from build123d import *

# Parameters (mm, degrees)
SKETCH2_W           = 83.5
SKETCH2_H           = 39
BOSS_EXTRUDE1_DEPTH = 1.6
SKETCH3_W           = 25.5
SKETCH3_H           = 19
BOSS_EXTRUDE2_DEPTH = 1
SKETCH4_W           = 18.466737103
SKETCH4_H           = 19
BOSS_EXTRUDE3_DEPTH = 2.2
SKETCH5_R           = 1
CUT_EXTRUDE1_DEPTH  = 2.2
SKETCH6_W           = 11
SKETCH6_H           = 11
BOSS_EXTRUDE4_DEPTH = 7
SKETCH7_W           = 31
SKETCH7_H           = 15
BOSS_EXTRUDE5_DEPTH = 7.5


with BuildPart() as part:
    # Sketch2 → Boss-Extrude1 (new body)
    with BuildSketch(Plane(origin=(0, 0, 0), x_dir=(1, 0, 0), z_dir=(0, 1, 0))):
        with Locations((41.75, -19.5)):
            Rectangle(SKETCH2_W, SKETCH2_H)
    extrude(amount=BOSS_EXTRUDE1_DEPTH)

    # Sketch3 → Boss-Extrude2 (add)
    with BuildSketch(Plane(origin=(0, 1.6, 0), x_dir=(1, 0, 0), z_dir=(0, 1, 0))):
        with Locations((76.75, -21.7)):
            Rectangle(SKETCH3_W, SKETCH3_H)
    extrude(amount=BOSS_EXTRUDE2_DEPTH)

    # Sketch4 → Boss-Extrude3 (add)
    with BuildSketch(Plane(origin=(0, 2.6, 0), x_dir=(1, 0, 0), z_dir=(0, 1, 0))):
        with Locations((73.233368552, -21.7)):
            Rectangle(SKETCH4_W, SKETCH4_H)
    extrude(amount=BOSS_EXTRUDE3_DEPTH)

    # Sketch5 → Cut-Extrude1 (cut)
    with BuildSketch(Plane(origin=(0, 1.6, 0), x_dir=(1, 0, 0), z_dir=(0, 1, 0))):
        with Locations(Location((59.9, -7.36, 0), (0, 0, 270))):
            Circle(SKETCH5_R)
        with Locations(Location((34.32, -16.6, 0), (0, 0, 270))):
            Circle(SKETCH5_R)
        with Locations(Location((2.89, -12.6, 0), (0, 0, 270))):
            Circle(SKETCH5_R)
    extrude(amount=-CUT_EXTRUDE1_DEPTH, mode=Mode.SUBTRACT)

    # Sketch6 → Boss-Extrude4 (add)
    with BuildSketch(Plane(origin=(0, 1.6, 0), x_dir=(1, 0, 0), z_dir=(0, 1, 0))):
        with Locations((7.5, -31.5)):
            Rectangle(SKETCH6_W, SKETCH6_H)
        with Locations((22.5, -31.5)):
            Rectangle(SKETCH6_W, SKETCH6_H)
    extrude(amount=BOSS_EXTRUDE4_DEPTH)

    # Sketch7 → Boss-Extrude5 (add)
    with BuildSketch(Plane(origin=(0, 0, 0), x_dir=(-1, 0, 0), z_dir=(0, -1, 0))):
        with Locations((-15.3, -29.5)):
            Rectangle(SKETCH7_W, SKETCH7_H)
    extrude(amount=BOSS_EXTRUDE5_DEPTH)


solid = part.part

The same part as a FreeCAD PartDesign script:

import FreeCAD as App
import Part
import Sketcher


def add_polygon(sketch, points):
    """Adds a closed chain of lines whose ends are joined by coincident constraints."""
    first, n = sketch.GeometryCount, len(points)
    for a, b in zip(points, points[1:] + points[:1]):
        sketch.addGeometry(Part.LineSegment(App.Vector(*a, 0), App.Vector(*b, 0)), False)
    for i in range(n):
        sketch.addConstraint(Sketcher.Constraint("Coincident", first + i, 2, first + (i + 1) % n, 1))

doc = App.newDocument("Part")
body = doc.addObject("PartDesign::Body", "Body")

# Sketch on XZ plane
sketch1 = body.newObject("Sketcher::SketchObject", "Sketch")
sketch1.AttachmentSupport = (doc.getObject("XZ_Plane"), [""])
sketch1.MapMode = "FlatFace"
add_polygon(sketch1, [(0, 0), (0, 39), (84, 39), (84, 0)])  # lines 0-3
sketch1.addConstraint([
    Sketcher.Constraint("Vertical", 0),
    Sketcher.Constraint("Horizontal", 1),
    Sketcher.Constraint("Vertical", 2),
    Sketcher.Constraint("Horizontal", 3),
    Sketcher.Constraint("Coincident", 3, 2, -1, 1),
    Sketcher.Constraint("DistanceY", 0, 1, 0, 2, 39.0),
    Sketcher.Constraint("DistanceX", 1, 1, 1, 2, 83.5),
])
pad1 = body.newObject("PartDesign::Pad", "Pad")
pad1.Profile = sketch1
pad1.Length = 1.6
pad1.Reversed = True

# Sketch on XZ plane
sketch2 = body.newObject("Sketcher::SketchObject", "Sketch001")
sketch2.AttachmentSupport = (doc.getObject("XZ_Plane"), [""])
sketch2.MapMode = "FlatFace"
sketch2.AttachmentOffset = App.Placement(App.Vector(0, 0, -1.6), App.Rotation())
add_polygon(sketch2, [(64, 12), (64, 31), (90, 31), (90, 12)])  # lines 0-3
sketch2.addConstraint([
    Sketcher.Constraint("Vertical", 0),
    Sketcher.Constraint("Horizontal", 1),
    Sketcher.Constraint("Vertical", 2),
    Sketcher.Constraint("Horizontal", 3),
    Sketcher.Constraint("DistanceY", 0, 1, 0, 2, 19.0),
    Sketcher.Constraint("DistanceX", 1, 1, 1, 2, 25.5),
    Sketcher.Constraint("DistanceX", -1, 1, 0, 2, 64.0),
    Sketcher.Constraint("DistanceY", -1, 1, 0, 2, 31.2),
])
pad2 = body.newObject("PartDesign::Pad", "Pad001")
pad2.Profile = sketch2
pad2.Length = 1
pad2.Reversed = True

# Sketch on XZ plane
sketch3 = body.newObject("Sketcher::SketchObject", "Sketch002")
sketch3.AttachmentSupport = (doc.getObject("XZ_Plane"), [""])
sketch3.MapMode = "FlatFace"
sketch3.AttachmentOffset = App.Placement(App.Vector(0, 0, -2.6), App.Rotation())
add_polygon(sketch3, [(64, 12), (64, 31), (82, 31), (82, 12)])  # lines 0-3
sketch3.addConstraint([
    Sketcher.Constraint("Vertical", 0),
    Sketcher.Constraint("Horizontal", 1),
    Sketcher.Constraint("Vertical", 2),
    Sketcher.Constraint("Horizontal", 3),
    Sketcher.Constraint("DistanceY", 0, 1, 0, 2, 19.0),
    Sketcher.Constraint("DistanceX", -1, 1, 0, 2, 64.0),
    Sketcher.Constraint("DistanceY", -1, 1, 0, 2, 31.2),
    Sketcher.Constraint("DistanceX", 1, 1, 1, 2, 18.466737),
])
pad3 = body.newObject("PartDesign::Pad", "Pad002")
pad3.Profile = sketch3
pad3.Length = 2.2
pad3.Reversed = True

# Sketch on XZ plane
sketch4 = body.newObject("Sketcher::SketchObject", "Sketch003")
sketch4.AttachmentSupport = (doc.getObject("XZ_Plane"), [""])
sketch4.MapMode = "FlatFace"
sketch4.AttachmentOffset = App.Placement(App.Vector(0, 0, -1.6), App.Rotation())
sketch4.addGeometry([
    Part.Circle(App.Vector(59.9, 7.4, 0), App.Vector(0, 0, 1), 1),
    Part.Circle(App.Vector(34.3, 16.6, 0), App.Vector(0, 0, 1), 1),
    Part.Circle(App.Vector(2.9, 12.6, 0), App.Vector(0, 0, 1), 1),
], False)
sketch4.addConstraint([
    Sketcher.Constraint("Equal", 0, 1),
    Sketcher.Constraint("Equal", 1, 2),
    Sketcher.Constraint("Diameter", 0, 2.0),
    Sketcher.Constraint("DistanceY", 2, 3, 1, 3, 4.0),
    Sketcher.Constraint("DistanceX", -1, 1, 0, 3, 59.9),
    Sketcher.Constraint("DistanceY", -1, 1, 1, 3, 16.6),
    Sketcher.Constraint("DistanceY", -1, 1, 0, 3, 7.36),
    Sketcher.Constraint("DistanceX", -1, 1, 1, 3, 34.32),
    Sketcher.Constraint("DistanceX", -1, 1, 2, 3, 2.89),
])
pocket1 = body.newObject("PartDesign::Pocket", "Pocket")
pocket1.Profile = sketch4
pocket1.Length = 2.2
pocket1.Reversed = True

# Sketch on XZ plane
sketch5 = body.newObject("Sketcher::SketchObject", "Sketch004")
sketch5.AttachmentSupport = (doc.getObject("XZ_Plane"), [""])
sketch5.MapMode = "FlatFace"
sketch5.AttachmentOffset = App.Placement(App.Vector(0, 0, -1.6), App.Rotation())
add_polygon(sketch5, [(2, 26), (2, 37), (13, 37), (13, 26)])  # lines 0-3
add_polygon(sketch5, [(17, 26), (17, 37), (28, 37), (28, 26)])  # lines 4-7
sketch5.addConstraint([
    Sketcher.Constraint("Vertical", 0),
    Sketcher.Constraint("Horizontal", 1),
    Sketcher.Constraint("Vertical", 2),
    Sketcher.Constraint("Horizontal", 3),
    Sketcher.Constraint("Vertical", 4),
    Sketcher.Constraint("Horizontal", 5),
    Sketcher.Constraint("Vertical", 6),
    Sketcher.Constraint("Horizontal", 7),
    Sketcher.Constraint("Horizontal", 1, 2, 4, 2),
    Sketcher.Constraint("Horizontal", 3, 2, 6, 2),
    Sketcher.Constraint("Equal", 3, 5),
    Sketcher.Constraint("Equal", 7, 0),
    Sketcher.Constraint("DistanceX", 1, 1, 1, 2, 11.0),
    Sketcher.Constraint("DistanceX", -1, 1, 0, 2, 2.0),
    Sketcher.Constraint("DistanceY", -1, 1, 0, 2, 37.0),
    Sketcher.Constraint("DistanceX", -1, 1, 4, 2, 17.0),
])
pad4 = body.newObject("PartDesign::Pad", "Pad003")
pad4.Profile = sketch5
pad4.Length = 7
pad4.Reversed = True

# Sketch on XZ plane
sketch6 = body.newObject("Sketcher::SketchObject", "Sketch005")
sketch6.AttachmentSupport = (doc.getObject("XZ_Plane"), [""])
sketch6.MapMode = "FlatFace"
add_polygon(sketch6, [(31, 22), (31, 37), (0, 37), (0, 22)])  # lines 0-3
sketch6.addConstraint([
    Sketcher.Constraint("Vertical", 0),
    Sketcher.Constraint("Horizontal", 1),
    Sketcher.Constraint("Vertical", 2),
    Sketcher.Constraint("Horizontal", 3),
    Sketcher.Constraint("DistanceX", 1, 2, 1, 1, 31.0),
    Sketcher.Constraint("DistanceY", 0, 1, 0, 2, 15.0),
    Sketcher.Constraint("DistanceY", -1, 1, 0, 2, 37.0),
    Sketcher.Constraint("DistanceX", -1, 1, 0, 2, 30.8),
])
pad5 = body.newObject("PartDesign::Pad", "Pad004")
pad5.Profile = sketch6
pad5.Length = 7.5

doc.recompute()
